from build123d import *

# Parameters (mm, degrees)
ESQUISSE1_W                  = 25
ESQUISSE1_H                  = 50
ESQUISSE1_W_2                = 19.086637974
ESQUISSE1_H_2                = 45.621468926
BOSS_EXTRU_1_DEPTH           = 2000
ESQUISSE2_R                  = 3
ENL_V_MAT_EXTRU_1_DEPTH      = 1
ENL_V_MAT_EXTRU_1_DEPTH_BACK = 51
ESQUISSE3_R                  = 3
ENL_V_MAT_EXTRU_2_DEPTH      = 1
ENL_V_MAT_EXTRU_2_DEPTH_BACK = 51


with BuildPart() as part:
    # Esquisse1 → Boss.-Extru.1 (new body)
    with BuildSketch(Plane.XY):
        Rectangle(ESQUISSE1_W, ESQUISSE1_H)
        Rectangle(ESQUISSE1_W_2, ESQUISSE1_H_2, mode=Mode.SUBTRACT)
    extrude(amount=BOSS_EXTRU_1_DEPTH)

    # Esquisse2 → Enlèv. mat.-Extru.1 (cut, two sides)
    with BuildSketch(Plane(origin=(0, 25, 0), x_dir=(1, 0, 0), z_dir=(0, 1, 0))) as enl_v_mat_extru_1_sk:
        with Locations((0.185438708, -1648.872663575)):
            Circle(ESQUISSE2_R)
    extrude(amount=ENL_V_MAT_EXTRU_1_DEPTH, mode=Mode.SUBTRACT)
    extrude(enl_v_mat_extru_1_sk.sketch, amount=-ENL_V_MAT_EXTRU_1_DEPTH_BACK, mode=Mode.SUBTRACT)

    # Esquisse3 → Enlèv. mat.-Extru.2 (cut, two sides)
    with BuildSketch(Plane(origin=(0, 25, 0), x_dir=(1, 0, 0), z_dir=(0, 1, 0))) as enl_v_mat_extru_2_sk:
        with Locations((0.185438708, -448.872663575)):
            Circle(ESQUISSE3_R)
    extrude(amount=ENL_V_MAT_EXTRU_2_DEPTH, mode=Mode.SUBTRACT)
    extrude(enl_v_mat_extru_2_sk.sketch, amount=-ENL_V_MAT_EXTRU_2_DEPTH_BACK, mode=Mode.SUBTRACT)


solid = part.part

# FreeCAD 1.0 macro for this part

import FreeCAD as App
import Part
import Sketcher

V = App.Vector

doc = App.newDocument("Part")
body = doc.addObject("PartDesign::Body", "Body")

sketch1 = doc.addObject("Sketcher::SketchObject", "Sketch")
body.addObject(sketch1)
sketch1.AttachmentSupport = (doc.XY_Plane, [""])
sketch1.MapMode = "FlatFace"
sketch1.addGeometry(Part.LineSegment(V(-12, 25, 0), V(-12, -25, 0)), False)
sketch1.addGeometry(Part.LineSegment(V(-12, -25, 0), V(12, -25, 0)), False)
sketch1.addGeometry(Part.LineSegment(V(12, -25, 0), V(12, 25, 0)), False)
sketch1.addGeometry(Part.LineSegment(V(12, 25, 0), V(-12, 25, 0)), False)
sketch1.addGeometry(Part.LineSegment(V(10, -23, 0), V(-10, -23, 0)), False)
sketch1.addGeometry(Part.LineSegment(V(-10, -23, 0), V(-10, 23, 0)), False)
sketch1.addGeometry(Part.LineSegment(V(-10, 23, 0), V(10, 23, 0)), False)
sketch1.addGeometry(Part.LineSegment(V(10, 23, 0), V(10, -23, 0)), False)
sketch1.addConstraint(Sketcher.Constraint("Coincident", 0, 2, 1, 1))
sketch1.addConstraint(Sketcher.Constraint("Coincident", 1, 2, 2, 1))
sketch1.addConstraint(Sketcher.Constraint("Coincident", 2, 2, 3, 1))
sketch1.addConstraint(Sketcher.Constraint("Coincident", 3, 2, 0, 1))
sketch1.addConstraint(Sketcher.Constraint("Coincident", 4, 2, 5, 1))
sketch1.addConstraint(Sketcher.Constraint("Coincident", 5, 2, 6, 1))
sketch1.addConstraint(Sketcher.Constraint("Coincident", 6, 2, 7, 1))
sketch1.addConstraint(Sketcher.Constraint("Coincident", 7, 2, 4, 1))
sketch1.addConstraint(Sketcher.Constraint("Vertical", 0))
sketch1.addConstraint(Sketcher.Constraint("Horizontal", 1))
sketch1.addConstraint(Sketcher.Constraint("Vertical", 2))
sketch1.addConstraint(Sketcher.Constraint("Horizontal", 3))
sketch1.addConstraint(Sketcher.Constraint("Horizontal", 4))
sketch1.addConstraint(Sketcher.Constraint("Vertical", 5))
sketch1.addConstraint(Sketcher.Constraint("Horizontal", 6))
sketch1.addConstraint(Sketcher.Constraint("Vertical", 7))
sketch1.addConstraint(Sketcher.Constraint("Symmetric", 0, 2, 2, 2, -1, 1))
sketch1.addConstraint(Sketcher.Constraint("Symmetric", 4, 2, 6, 2, -1, 1))
sketch1.addConstraint(Sketcher.Constraint("DistanceX", 1, 1, 1, 2, 25.0))
sketch1.addConstraint(Sketcher.Constraint("DistanceY", 0, 2, 0, 1, 50.0))
sketch1.addConstraint(Sketcher.Constraint("DistanceY", 5, 1, 5, 2, 45.621469))
sketch1.addConstraint(Sketcher.Constraint("DistanceX", 4, 2, 4, 1, 19.086638))
pad1 = doc.addObject("PartDesign::Pad", "Pad")
body.addObject(pad1)
pad1.Profile = sketch1
pad1.Length = 2000

sketch2 = doc.addObject("Sketcher::SketchObject", "Sketch001")
body.addObject(sketch2)
sketch2.AttachmentSupport = (doc.XZ_Plane, [""])
sketch2.MapMode = "FlatFace"
sketch2.AttachmentOffset = App.Placement(V(0, 0, -25), App.Rotation())
sketch2.addGeometry(Part.Circle(V(0.2, 1648.9, 0), V(0, 0, 1), 3), False)
sketch2.addConstraint(Sketcher.Constraint("Diameter", 0, 6.0))
sketch2.addConstraint(Sketcher.Constraint("DistanceX", -1, 1, 0, 3, 0.185439))
sketch2.addConstraint(Sketcher.Constraint("DistanceY", -1, 1, 0, 3, 1648.872664))
pocket1 = doc.addObject("PartDesign::Pocket", "Pocket")
body.addObject(pocket1)
pocket1.Profile = sketch2
pocket1.Type = "ThroughAll"
pocket1.Midplane = True

sketch3 = doc.addObject("Sketcher::SketchObject", "Sketch002")
body.addObject(sketch3)
sketch3.AttachmentSupport = (doc.XZ_Plane, [""])
sketch3.MapMode = "FlatFace"
sketch3.AttachmentOffset = App.Placement(V(0, 0, -25), App.Rotation())
sketch3.addGeometry(Part.Circle(V(0.2, 448.9, 0), V(0, 0, 1), 3), False)
sketch3.addConstraint(Sketcher.Constraint("Diameter", 0, 6.0))
sketch3.addConstraint(Sketcher.Constraint("DistanceX", -1, 1, 0, 3, 0.185439))
sketch3.addConstraint(Sketcher.Constraint("DistanceY", -1, 1, 0, 3, 448.872664))
pocket2 = doc.addObject("PartDesign::Pocket", "Pocket001")
body.addObject(pocket2)
pocket2.Profile = sketch3
pocket2.Type = "ThroughAll"
pocket2.Midplane = True

doc.recompute()
